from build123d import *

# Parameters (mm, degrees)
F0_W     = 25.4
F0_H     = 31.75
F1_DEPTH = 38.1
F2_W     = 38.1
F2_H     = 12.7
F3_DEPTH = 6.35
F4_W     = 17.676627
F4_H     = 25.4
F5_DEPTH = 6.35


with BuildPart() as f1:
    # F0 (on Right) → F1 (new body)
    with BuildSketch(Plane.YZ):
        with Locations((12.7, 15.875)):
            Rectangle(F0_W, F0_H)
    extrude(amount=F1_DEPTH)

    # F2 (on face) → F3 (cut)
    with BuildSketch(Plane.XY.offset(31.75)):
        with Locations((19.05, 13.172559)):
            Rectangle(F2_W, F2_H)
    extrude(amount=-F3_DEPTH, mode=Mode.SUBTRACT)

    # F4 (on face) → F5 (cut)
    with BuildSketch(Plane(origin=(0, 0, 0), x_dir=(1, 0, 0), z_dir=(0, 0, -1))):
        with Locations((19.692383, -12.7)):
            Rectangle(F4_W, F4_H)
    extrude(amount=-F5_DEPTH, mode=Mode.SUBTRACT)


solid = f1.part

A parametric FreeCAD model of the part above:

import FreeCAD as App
import Part
import Sketcher
Q = App.Units.Quantity


def add_polygon(sketch, points):
    """Adds a closed chain of lines whose ends are joined by coincident constraints."""
    first, n = sketch.GeometryCount, len(points)
    for a, b in zip(points, points[1:] + points[:1]):
        sketch.addGeometry(Part.LineSegment(App.Vector(*a, 0), App.Vector(*b, 0)), False)
    for i in range(n):
        sketch.addConstraint(Sketcher.Constraint("Coincident", first + i, 2, first + (i + 1) % n, 1))

doc = App.newDocument("Part")
body = doc.addObject("PartDesign::Body", "Body")

sketch1 = doc.addObject("Sketcher::SketchObject", "Sketch")
body.addObject(sketch1)
sketch1.AttachmentSupport = (doc.YZ_Plane, [""])
sketch1.MapMode = "FlatFace"
add_polygon(sketch1, [(0, 32), (0, 0), (25, 0), (25, 32)])
sketch1.addConstraint([
    Sketcher.Constraint("Vertical", 0),
    Sketcher.Constraint("Horizontal", 1),
    Sketcher.Constraint("Vertical", 2),
    Sketcher.Constraint("Horizontal", 3),
    Sketcher.Constraint("Coincident", 0, 2, -1, 1),
    Sketcher.Constraint("DistanceX", 1, 1, 1, 2, Q("1 in")),
    Sketcher.Constraint("DistanceY", 0, 2, 0, 1, Q("1.25 in")),
])
pad1 = doc.addObject("PartDesign::Pad", "Pad")
body.addObject(pad1)
pad1.Profile = sketch1
pad1.Length = Q("1.5 in")

sketch2 = doc.addObject("Sketcher::SketchObject", "Sketch001")
body.addObject(sketch2)
sketch2.AttachmentSupport = (doc.XY_Plane, [""])
sketch2.MapMode = "FlatFace"
sketch2.AttachmentOffset = App.Placement(App.Vector(0, 0, 1.25 * 25.4), App.Rotation())
add_polygon(sketch2, [(0, 20), (0, 7), (38, 7), (38, 20)])
sketch2.addConstraint([
    Sketcher.Constraint("Vertical", 0),
    Sketcher.Constraint("Horizontal", 1),
    Sketcher.Constraint("Vertical", 2),
    Sketcher.Constraint("Horizontal", 3),
    Sketcher.Constraint("PointOnObject", 0, 2, -2),
    Sketcher.Constraint("DistanceX", 1, 1, 1, 2, Q("1.5 in")),
    Sketcher.Constraint("DistanceY", 0, 2, 0, 1, Q("0.5 in")),
    Sketcher.Constraint("DistanceY", -1, 1, 0, 2, 6.822559),
])
pocket1 = doc.addObject("PartDesign::Pocket", "Pocket")
body.addObject(pocket1)
pocket1.Profile = sketch2
pocket1.Length = Q("0.25 in")

sketch3 = doc.addObject("Sketcher::SketchObject", "Sketch002")
body.addObject(sketch3)
sketch3.AttachmentSupport = (doc.XY_Plane, [""])
sketch3.MapMode = "FlatFace"
add_polygon(sketch3, [(11, 0), (11, 25), (29, 25), (29, 0)])
sketch3.addConstraint([
    Sketcher.Constraint("Vertical", 0),
    Sketcher.Constraint("Horizontal", 1),
    Sketcher.Constraint("Vertical", 2),
    Sketcher.Constraint("Horizontal", 3),
    Sketcher.Constraint("PointOnObject", 2, 2, -1),
    Sketcher.Constraint("DistanceY", 0, 1, 0, 2, Q("1 in")),
    Sketcher.Constraint("DistanceX", 1, 1, 1, 2, 17.676627),
    Sketcher.Constraint("DistanceX", -1, 1, 0, 2, 10.854069),
])
pocket2 = doc.addObject("PartDesign::Pocket", "Pocket001")
body.addObject(pocket2)
pocket2.Profile = sketch3
pocket2.Length = Q("0.25 in")
pocket2.Reversed = True

doc.recompute()
